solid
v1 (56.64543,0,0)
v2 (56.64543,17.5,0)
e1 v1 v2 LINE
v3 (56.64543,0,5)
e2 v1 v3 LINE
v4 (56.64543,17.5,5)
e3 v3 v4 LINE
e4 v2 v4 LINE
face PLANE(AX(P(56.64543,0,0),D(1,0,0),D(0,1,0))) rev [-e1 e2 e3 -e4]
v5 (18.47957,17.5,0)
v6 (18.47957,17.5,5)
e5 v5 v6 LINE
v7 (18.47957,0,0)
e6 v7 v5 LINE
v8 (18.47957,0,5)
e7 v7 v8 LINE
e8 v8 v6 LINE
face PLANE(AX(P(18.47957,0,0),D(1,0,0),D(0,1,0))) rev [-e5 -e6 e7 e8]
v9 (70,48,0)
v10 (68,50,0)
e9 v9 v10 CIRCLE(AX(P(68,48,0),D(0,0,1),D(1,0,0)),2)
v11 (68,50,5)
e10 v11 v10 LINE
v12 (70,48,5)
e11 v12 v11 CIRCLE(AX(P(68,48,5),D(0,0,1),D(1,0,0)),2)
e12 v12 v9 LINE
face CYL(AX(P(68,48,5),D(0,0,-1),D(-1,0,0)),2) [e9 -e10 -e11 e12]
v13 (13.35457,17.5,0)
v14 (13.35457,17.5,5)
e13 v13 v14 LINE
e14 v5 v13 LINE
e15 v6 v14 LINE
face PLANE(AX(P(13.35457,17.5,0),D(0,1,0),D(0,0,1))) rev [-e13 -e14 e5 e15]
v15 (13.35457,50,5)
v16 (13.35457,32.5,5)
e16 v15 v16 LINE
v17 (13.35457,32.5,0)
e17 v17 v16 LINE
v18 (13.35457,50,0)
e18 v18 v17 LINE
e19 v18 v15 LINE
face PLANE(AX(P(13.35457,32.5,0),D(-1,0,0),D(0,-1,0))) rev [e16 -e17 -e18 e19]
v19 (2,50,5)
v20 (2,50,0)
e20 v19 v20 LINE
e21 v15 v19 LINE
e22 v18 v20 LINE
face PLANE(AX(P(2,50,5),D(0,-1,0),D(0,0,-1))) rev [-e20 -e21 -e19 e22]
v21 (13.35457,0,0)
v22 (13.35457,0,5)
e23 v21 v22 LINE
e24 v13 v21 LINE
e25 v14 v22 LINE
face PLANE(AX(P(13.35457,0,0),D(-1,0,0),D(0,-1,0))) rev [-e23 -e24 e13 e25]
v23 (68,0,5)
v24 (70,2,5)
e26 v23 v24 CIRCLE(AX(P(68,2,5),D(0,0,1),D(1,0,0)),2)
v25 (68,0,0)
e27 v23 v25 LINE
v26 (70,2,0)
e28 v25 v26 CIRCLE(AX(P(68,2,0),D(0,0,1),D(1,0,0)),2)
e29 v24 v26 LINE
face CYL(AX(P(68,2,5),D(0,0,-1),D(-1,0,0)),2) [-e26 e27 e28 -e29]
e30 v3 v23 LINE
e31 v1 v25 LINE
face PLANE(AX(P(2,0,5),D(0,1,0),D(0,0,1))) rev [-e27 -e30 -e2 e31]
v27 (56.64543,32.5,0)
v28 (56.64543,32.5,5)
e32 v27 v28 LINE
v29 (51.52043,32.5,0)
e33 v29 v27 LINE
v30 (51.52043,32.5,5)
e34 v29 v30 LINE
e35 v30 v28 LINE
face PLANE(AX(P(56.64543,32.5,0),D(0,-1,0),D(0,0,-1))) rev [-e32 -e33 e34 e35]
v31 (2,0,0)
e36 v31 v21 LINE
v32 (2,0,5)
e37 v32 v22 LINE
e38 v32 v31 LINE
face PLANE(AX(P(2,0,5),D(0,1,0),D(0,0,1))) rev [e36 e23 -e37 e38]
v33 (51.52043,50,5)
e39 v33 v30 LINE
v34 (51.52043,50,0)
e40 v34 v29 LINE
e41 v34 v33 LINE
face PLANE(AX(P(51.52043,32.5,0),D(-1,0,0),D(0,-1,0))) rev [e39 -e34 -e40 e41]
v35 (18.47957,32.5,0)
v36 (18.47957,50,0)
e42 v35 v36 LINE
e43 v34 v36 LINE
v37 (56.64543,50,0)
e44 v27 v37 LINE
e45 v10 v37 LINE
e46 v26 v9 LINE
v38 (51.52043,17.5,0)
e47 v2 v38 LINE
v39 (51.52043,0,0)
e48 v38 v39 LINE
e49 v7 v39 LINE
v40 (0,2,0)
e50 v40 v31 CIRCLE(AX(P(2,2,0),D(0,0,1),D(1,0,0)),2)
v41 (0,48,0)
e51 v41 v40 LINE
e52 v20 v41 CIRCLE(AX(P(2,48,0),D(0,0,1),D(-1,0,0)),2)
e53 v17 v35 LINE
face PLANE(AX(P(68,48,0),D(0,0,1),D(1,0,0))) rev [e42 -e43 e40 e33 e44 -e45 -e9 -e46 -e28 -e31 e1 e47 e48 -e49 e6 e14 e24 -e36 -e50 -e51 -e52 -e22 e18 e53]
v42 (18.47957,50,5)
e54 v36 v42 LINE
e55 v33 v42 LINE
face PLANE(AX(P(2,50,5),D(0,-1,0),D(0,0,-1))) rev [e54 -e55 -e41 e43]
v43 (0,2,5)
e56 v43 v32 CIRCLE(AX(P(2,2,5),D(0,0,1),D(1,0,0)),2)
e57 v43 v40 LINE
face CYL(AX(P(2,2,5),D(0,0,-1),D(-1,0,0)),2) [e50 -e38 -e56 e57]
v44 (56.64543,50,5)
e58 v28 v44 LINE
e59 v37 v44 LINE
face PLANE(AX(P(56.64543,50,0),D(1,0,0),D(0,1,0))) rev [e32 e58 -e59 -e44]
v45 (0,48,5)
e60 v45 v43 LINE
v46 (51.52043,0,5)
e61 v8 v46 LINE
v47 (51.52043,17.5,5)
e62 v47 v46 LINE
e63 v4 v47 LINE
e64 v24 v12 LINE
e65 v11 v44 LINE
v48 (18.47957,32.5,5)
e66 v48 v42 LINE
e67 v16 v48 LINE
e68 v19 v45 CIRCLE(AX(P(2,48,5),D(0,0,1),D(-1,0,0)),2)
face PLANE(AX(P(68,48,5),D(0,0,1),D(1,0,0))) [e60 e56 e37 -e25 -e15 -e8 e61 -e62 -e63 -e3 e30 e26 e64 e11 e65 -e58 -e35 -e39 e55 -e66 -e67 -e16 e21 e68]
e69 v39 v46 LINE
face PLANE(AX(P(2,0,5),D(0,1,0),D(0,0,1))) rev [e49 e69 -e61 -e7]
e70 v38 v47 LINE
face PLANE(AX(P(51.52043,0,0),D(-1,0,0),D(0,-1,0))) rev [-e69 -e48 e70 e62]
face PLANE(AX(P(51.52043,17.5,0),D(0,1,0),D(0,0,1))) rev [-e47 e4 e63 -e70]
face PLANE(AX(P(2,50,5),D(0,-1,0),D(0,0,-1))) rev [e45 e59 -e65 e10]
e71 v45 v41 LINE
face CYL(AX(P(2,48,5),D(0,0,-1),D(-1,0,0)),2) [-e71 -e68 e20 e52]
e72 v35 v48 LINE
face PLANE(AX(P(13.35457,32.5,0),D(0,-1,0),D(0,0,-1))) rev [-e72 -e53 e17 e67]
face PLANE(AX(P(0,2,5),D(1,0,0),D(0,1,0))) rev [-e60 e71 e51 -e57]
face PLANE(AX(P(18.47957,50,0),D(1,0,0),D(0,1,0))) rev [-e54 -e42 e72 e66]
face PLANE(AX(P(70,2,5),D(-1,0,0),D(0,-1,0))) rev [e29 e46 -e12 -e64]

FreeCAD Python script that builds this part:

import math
import FreeCAD as App
import Part
import Sketcher

V = App.Vector


def add_polygon(sketch, points):
    """Adds a closed chain of lines whose ends are joined by coincident constraints."""
    first, n = sketch.GeometryCount, len(points)
    for a, b in zip(points, points[1:] + points[:1]):
        sketch.addGeometry(Part.LineSegment(App.Vector(*a, 0), App.Vector(*b, 0)), False)
    for i in range(n):
        sketch.addConstraint(Sketcher.Constraint("Coincident", first + i, 2, first + (i + 1) % n, 1))

doc = App.newDocument("Part")
body = doc.addObject("PartDesign::Body", "Body")

# Sketch on XY plane
sketch1 = doc.addObject("Sketcher::SketchObject", "Sketch")
body.addObject(sketch1)
sketch1.AttachmentSupport = (doc.XY_Plane, [""])
sketch1.MapMode = "FlatFace"
sketch1.addGeometry([
    Part.LineSegment(V(2, 0, 0), V(68, 0, 0)),  # 0
    Part.ArcOfCircle(Part.Circle(V(68, 2, 0), V(0, 0, 1), 2), math.radians(-90), math.radians(0)),  # 1
    Part.LineSegment(V(70, 2, 0), V(70, 48, 0)),  # 2
    Part.ArcOfCircle(Part.Circle(V(68, 48, 0), V(0, 0, 1), 2), math.radians(0), math.radians(90)),  # 3
    Part.LineSegment(V(68, 50, 0), V(2, 50, 0)),  # 4
    Part.ArcOfCircle(Part.Circle(V(2, 48, 0), V(0, 0, 1), 2), math.radians(90), math.radians(180)),  # 5
    Part.LineSegment(V(0, 48, 0), V(0, 2, 0)),  # 6
    Part.ArcOfCircle(Part.Circle(V(2, 2, 0), V(0, 0, 1), 2), math.radians(-180), math.radians(-90)),  # 7
], False)
sketch1.addConstraint([
    Sketcher.Constraint("Tangent", 0, 2, 1, 1),
    Sketcher.Constraint("Tangent", 1, 2, 2, 1),
    Sketcher.Constraint("Tangent", 2, 2, 3, 1),
    Sketcher.Constraint("Tangent", 3, 2, 4, 1),
    Sketcher.Constraint("Tangent", 4, 2, 5, 1),
    Sketcher.Constraint("Tangent", 5, 2, 6, 1),
    Sketcher.Constraint("Tangent", 6, 2, 7, 1),
    Sketcher.Constraint("Tangent", 7, 2, 0, 1),
    Sketcher.Constraint("Horizontal", 0),
    Sketcher.Constraint("Vertical", 2),
    Sketcher.Constraint("Horizontal", 4),
    Sketcher.Constraint("Vertical", 6),
    Sketcher.Constraint("Equal", 1, 3),
    Sketcher.Constraint("Equal", 3, 5),
    Sketcher.Constraint("Equal", 5, 7),
    Sketcher.Constraint("PointOnObject", 0, 2, -1),
    Sketcher.Constraint("PointOnObject", 5, 2, -2),
    Sketcher.Constraint("Radius", 1, 2.0),
    Sketcher.Constraint("DistanceX", 0, 1, 0, 2, 66.0),
    Sketcher.Constraint("DistanceY", 2, 1, 2, 2, 46.0),
])
pad1 = doc.addObject("PartDesign::Pad", "Pad")
body.addObject(pad1)
pad1.Profile = sketch1
pad1.Length = 5

# Sketch on XY plane
sketch2 = doc.addObject("Sketcher::SketchObject", "Sketch001")
body.addObject(sketch2)
sketch2.AttachmentSupport = (doc.XY_Plane, [""])
sketch2.MapMode = "FlatFace"
sketch2.AttachmentOffset = App.Placement(V(0, 0, 5), App.Rotation())
add_polygon(sketch2, [(13, 50), (13, 32), (18, 32), (18, 50)])  # lines 0-3
add_polygon(sketch2, [(52, 50), (52, 32), (57, 32), (57, 50)])  # lines 4-7
add_polygon(sketch2, [(13, 18), (13, 0), (18, 0), (18, 18)])  # lines 8-11
add_polygon(sketch2, [(52, 18), (52, 0), (57, 0), (57, 18)])  # lines 12-15
sketch2.addConstraint([
    Sketcher.Constraint("Vertical", 0),
    Sketcher.Constraint("Horizontal", 1),
    Sketcher.Constraint("Vertical", 2),
    Sketcher.Constraint("Horizontal", 3),
    Sketcher.Constraint("Vertical", 4),
    Sketcher.Constraint("Horizontal", 5),
    Sketcher.Constraint("Vertical", 6),
    Sketcher.Constraint("Horizontal", 7),
    Sketcher.Constraint("Vertical", 8),
    Sketcher.Constraint("Horizontal", 9),
    Sketcher.Constraint("Vertical", 10),
    Sketcher.Constraint("Horizontal", 11),
    Sketcher.Constraint("Vertical", 12),
    Sketcher.Constraint("Horizontal", 13),
    Sketcher.Constraint("Vertical", 14),
    Sketcher.Constraint("Horizontal", 15),
    Sketcher.Constraint("PointOnObject", 8, 2, -1),
    Sketcher.Constraint("PointOnObject", 12, 2, -1),
    Sketcher.Constraint("Horizontal", 1, 2, 4, 2),
    Sketcher.Constraint("Horizontal", 3, 2, 6, 2),
    Sketcher.Constraint("Horizontal", 11, 2, 14, 2),
    Sketcher.Constraint("Vertical", 3, 2, 8, 2),
    Sketcher.Constraint("Vertical", 2, 2, 9, 2),
    Sketcher.Constraint("Vertical", 7, 2, 12, 2),
    Sketcher.Constraint("Vertical", 6, 2, 13, 2),
    Sketcher.Constraint("Equal", 3, 5),
    Sketcher.Constraint("Equal", 6, 8),
    Sketcher.Constraint("DistanceY", 0, 2, 0, 1, 17.5),
    Sketcher.Constraint("DistanceY", -1, 1, 2, 2, 50.0),
    Sketcher.Constraint("DistanceX", 1, 1, 1, 2, 5.125),
    Sketcher.Constraint("DistanceX", -1, 1, 0, 2, 13.35457),
    Sketcher.Constraint("DistanceX", -1, 1, 4, 2, 51.52043),
])
pocket1 = doc.addObject("PartDesign::Pocket", "Pocket")
body.addObject(pocket1)
pocket1.Profile = sketch2
pocket1.Length = 5

doc.recompute()
